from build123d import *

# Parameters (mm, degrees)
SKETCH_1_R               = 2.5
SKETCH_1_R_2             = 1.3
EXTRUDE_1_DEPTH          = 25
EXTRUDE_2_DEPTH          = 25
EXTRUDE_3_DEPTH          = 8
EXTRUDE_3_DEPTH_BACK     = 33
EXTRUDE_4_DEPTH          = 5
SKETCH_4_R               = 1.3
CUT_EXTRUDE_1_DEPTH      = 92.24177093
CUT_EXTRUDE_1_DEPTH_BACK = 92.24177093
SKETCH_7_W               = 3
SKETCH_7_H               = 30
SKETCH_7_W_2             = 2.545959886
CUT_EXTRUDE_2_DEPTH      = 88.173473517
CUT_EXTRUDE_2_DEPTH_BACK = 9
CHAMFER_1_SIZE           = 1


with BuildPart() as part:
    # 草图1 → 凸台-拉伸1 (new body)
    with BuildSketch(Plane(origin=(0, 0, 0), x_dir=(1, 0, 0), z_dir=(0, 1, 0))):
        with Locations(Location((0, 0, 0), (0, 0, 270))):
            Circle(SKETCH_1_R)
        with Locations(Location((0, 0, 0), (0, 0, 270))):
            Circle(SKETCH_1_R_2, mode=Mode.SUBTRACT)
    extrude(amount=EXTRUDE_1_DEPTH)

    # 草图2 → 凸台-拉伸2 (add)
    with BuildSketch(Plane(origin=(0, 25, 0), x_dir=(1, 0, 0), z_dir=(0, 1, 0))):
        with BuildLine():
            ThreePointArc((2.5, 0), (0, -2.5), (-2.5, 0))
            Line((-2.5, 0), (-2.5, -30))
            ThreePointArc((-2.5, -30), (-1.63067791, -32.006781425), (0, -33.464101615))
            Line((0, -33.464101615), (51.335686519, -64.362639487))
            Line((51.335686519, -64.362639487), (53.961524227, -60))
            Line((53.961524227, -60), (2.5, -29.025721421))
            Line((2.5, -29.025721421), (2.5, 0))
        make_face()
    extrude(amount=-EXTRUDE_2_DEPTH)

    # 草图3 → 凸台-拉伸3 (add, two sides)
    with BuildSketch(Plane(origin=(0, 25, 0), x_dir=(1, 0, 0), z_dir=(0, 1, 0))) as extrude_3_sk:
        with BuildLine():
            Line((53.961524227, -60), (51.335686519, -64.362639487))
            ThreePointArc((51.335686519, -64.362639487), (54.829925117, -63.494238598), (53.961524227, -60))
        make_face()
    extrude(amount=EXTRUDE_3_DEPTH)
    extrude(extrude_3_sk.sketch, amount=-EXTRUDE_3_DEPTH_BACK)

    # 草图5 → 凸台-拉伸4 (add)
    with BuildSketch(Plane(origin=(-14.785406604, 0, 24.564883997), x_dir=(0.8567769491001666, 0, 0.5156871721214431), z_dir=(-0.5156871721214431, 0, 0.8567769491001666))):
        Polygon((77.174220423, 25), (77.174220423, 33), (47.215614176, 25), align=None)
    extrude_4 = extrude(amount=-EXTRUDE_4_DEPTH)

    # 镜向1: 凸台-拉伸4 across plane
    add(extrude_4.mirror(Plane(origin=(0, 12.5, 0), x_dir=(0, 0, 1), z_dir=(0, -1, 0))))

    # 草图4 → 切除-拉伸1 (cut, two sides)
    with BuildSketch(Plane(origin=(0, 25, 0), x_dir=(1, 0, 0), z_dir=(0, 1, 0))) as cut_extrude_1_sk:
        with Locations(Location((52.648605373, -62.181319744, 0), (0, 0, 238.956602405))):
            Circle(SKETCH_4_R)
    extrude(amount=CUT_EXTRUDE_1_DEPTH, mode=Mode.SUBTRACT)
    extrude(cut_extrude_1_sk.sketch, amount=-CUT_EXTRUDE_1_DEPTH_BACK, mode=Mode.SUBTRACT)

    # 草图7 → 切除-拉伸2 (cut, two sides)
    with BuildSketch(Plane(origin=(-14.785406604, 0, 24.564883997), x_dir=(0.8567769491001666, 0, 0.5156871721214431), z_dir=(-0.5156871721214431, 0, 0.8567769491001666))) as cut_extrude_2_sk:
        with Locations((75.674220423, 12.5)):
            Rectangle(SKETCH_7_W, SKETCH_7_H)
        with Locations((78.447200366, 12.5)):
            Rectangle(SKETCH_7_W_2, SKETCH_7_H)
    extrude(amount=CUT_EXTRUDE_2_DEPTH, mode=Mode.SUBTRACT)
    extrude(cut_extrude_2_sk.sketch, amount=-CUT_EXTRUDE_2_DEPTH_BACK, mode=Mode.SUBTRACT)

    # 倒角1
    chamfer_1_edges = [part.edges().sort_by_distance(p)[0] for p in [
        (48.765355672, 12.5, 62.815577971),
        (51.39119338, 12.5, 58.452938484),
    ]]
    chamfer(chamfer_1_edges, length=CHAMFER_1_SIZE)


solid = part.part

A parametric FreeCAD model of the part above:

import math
import FreeCAD as App
import Part
import Sketcher

V = App.Vector


def edges_at(feature, points):
    """Names of the edges that pass closest to the given points."""
    edges = feature.Shape.Edges
    near = lambda p: min(range(len(edges)), key=lambda i: edges[i].distToShape(Part.Vertex(*p))[0])
    return sorted({f"Edge{near(p) + 1}" for p in points})


def add_polygon(sketch, points):
    """Adds a closed chain of lines whose ends are joined by coincident constraints."""
    first, n = sketch.GeometryCount, len(points)
    for a, b in zip(points, points[1:] + points[:1]):
        sketch.addGeometry(Part.LineSegment(App.Vector(*a, 0), App.Vector(*b, 0)), False)
    for i in range(n):
        sketch.addConstraint(Sketcher.Constraint("Coincident", first + i, 2, first + (i + 1) % n, 1))

doc = App.newDocument("Part")
body = doc.addObject("PartDesign::Body", "Body")

sketch1 = doc.addObject("Sketcher::SketchObject", "Sketch")
body.addObject(sketch1)
sketch1.AttachmentSupport = (doc.XZ_Plane, [""])
sketch1.MapMode = "FlatFace"
sketch1.addGeometry([
    Part.Circle(V(0, 0, 0), V(0, 0, 1), 2.5),
    Part.Circle(V(0, 0, 0), V(0, 0, 1), 1.3),
], False)
sketch1.addConstraint([
    Sketcher.Constraint("Coincident", 0, 3, -1, 1),
    Sketcher.Constraint("Coincident", 1, 3, -1, 1),
    Sketcher.Constraint("Diameter", 0, 5.0),
    Sketcher.Constraint("Diameter", 1, 2.6),
])
pad1 = doc.addObject("PartDesign::Pad", "Pad")
body.addObject(pad1)
pad1.Profile = sketch1
pad1.Length = 25
pad1.Reversed = True

sketch2 = doc.addObject("Sketcher::SketchObject", "Sketch001")
body.addObject(sketch2)
sketch2.AttachmentSupport = (doc.XZ_Plane, [""])
sketch2.MapMode = "FlatFace"
sketch2.AttachmentOffset = App.Placement(V(0, 0, -25), App.Rotation())
sketch2.addGeometry([
    Part.ArcOfCircle(Part.Circle(V(0, 0, 0), V(0, 0, 1), 2.5), math.radians(0), math.radians(180)),
    Part.LineSegment(V(-2.5, 0, 0), V(-2.5, 30, 0)),
    Part.ArcOfCircle(Part.Circle(V(2.5, 29.025721, 0), V(0, 0, 1), 5.094038), math.radians(119.391193), math.radians(168.973755)),
    Part.LineSegment(V(0, 33.464102, 0), V(51.335687, 64.362639, 0)),
    Part.LineSegment(V(51.335687, 64.362639, 0), V(53.961524, 60, 0)),
    Part.LineSegment(V(53.961524, 60, 0), V(2.5, 29.025721, 0)),
    Part.LineSegment(V(2.5, 29.025721, 0), V(2.5, 0, 0)),
], False)
sketch2.addConstraint([
    Sketcher.Constraint("Coincident", 0, 2, 1, 1),
    Sketcher.Constraint("Coincident", 1, 2, 2, 2),
    Sketcher.Constraint("Coincident", 2, 1, 3, 1),
    Sketcher.Constraint("Coincident", 3, 2, 4, 1),
    Sketcher.Constraint("Coincident", 4, 2, 5, 1),
    Sketcher.Constraint("Coincident", 5, 2, 6, 1),
    Sketcher.Constraint("Coincident", 6, 2, 0, 1),
    Sketcher.Constraint("Vertical", 1),
    Sketcher.Constraint("Vertical", 6),
    Sketcher.Constraint("Coincident", 0, 3, -1, 1),
    Sketcher.Constraint("Coincident", 5, 2, 2, 3),
    Sketcher.Constraint("PointOnObject", 0, 2, -1),
    Sketcher.Constraint("PointOnObject", 2, 1, -2),
    Sketcher.Constraint("PointOnObject", 6, 2, -1),
    Sketcher.Constraint("Radius", 0, 2.5),
    Sketcher.Constraint("DistanceY", 1, 1, 1, 2, 30.0),
    Sketcher.Constraint("DistanceY", -1, 1, 4, 2, 60.0),
    Sketcher.Constraint("Radius", 2, 5.094038),
    Sketcher.Constraint("Distance", 4, 5.09192),
    Sketcher.Constraint("DistanceY", -1, 1, 3, 2, 64.362639),
    Sketcher.Constraint("Distance", 3, 59.917212),
])
pad2 = doc.addObject("PartDesign::Pad", "Pad001")
body.addObject(pad2)
pad2.Profile = sketch2
pad2.Length = 25

sketch3 = doc.addObject("Sketcher::SketchObject", "Sketch002")
body.addObject(sketch3)
sketch3.AttachmentSupport = (doc.XZ_Plane, [""])
sketch3.MapMode = "FlatFace"
sketch3.AttachmentOffset = App.Placement(V(0, 0, -25), App.Rotation())
sketch3.addGeometry([
    Part.LineSegment(V(54, 60, 0), V(51.3, 64.4, 0)),
    Part.ArcOfCircle(Part.Circle(V(52.6, 62.2, 0), V(0, 0, 1), 2.5), math.radians(-59), math.radians(121)),
], False)
sketch3.addConstraint([
    Sketcher.Constraint("Coincident", 0, 1, 1, 1),
    Sketcher.Constraint("Coincident", 1, 2, 0, 2),
    Sketcher.Constraint("DistanceY", -1, 1, 0, 1, 60.0),
    Sketcher.Constraint("Radius", 1, 2.54596),
    Sketcher.Constraint("DistanceY", -1, 1, 1, 3, 62.18132),
    Sketcher.Constraint("DistanceY", -1, 1, 1, 2, 64.362639),
    Sketcher.Constraint("DistanceX", -1, 1, 1, 3, 52.648605),
])
pad3 = doc.addObject("PartDesign::Pad", "Pad002")
body.addObject(pad3)
pad3.Profile = sketch3
pad3.Type = "TwoLengths"
pad3.Length = 8
pad3.Length2 = 33
pad3.Reversed = True

sketch4 = doc.addObject("Sketcher::SketchObject", "Sketch003")
body.addObject(sketch4)
sketch4.Placement = App.Placement(V(-14.785407, 0, 24.564884), App.Rotation(V(0.856776949, 0, 0.515687172), V(0, 1, 0), V(-0.515687172, 0, 0.856776949), "ZXY"))
add_polygon(sketch4, [(77, 25), (77, 33), (47, 25)])
sketch4.addConstraint([
    Sketcher.Constraint("Vertical", 0),
    Sketcher.Constraint("Horizontal", 2),
    Sketcher.Constraint("DistanceY", 0, 1, 0, 2, 8.0),
    Sketcher.Constraint("DistanceY", -1, 1, 0, 2, 33.0),
    Sketcher.Constraint("DistanceX", 2, 1, 2, 2, 29.958606),
    Sketcher.Constraint("DistanceX", -1, 1, 0, 2, 77.17422),
])
pad4 = doc.addObject("PartDesign::Pad", "Pad003")
body.addObject(pad4)
pad4.Profile = sketch4
pad4.Length = 5
pad4.Reversed = True
doc.recompute()

datumplane = doc.addObject("PartDesign::Plane", "DatumPlane")
body.addObject(datumplane)
datumplane.AttachmentSupport = (doc.XZ_Plane, [""])
datumplane.MapMode = "FlatFace"
datumplane.AttachmentOffset = App.Placement(V(0, 0, -12.5), App.Rotation())
mirrored = doc.addObject("PartDesign::Mirrored", "Mirrored")
body.addObject(mirrored)
mirrored.Originals = [pad4]
mirrored.MirrorPlane = (datumplane, [""])
body.Tip = mirrored

sketch5 = doc.addObject("Sketcher::SketchObject", "Sketch004")
body.addObject(sketch5)
sketch5.AttachmentSupport = (doc.XZ_Plane, [""])
sketch5.MapMode = "FlatFace"
sketch5.AttachmentOffset = App.Placement(V(0, 0, -25), App.Rotation())
sketch5.addGeometry(Part.Circle(V(52.6, 62.2, 0), V(0, 0, 1), 1.3), False)
sketch5.addConstraint([
    Sketcher.Constraint("Diameter", 0, 2.6),
    Sketcher.Constraint("DistanceY", -1, 1, 0, 3, 62.18132),
    Sketcher.Constraint("DistanceX", -1, 1, 0, 3, 52.648605),
])
pocket1 = doc.addObject("PartDesign::Pocket", "Pocket")
body.addObject(pocket1)
pocket1.Profile = sketch5
pocket1.Type = "ThroughAll"
pocket1.Midplane = True

sketch6 = doc.addObject("Sketcher::SketchObject", "Sketch005")
body.addObject(sketch6)
sketch6.Placement = App.Placement(V(-14.785407, 0, 24.564884), App.Rotation(V(0.856776949, 0, 0.515687172), V(0, 1, 0), V(-0.515687172, 0, 0.856776949), "ZXY"))
add_polygon(sketch6, [(74, 27), (74, -2), (80, -2), (80, 27)])
sketch6.addConstraint([
    Sketcher.Constraint("Vertical", 0),
    Sketcher.Constraint("Horizontal", 1),
    Sketcher.Constraint("Vertical", 2),
    Sketcher.Constraint("Horizontal", 3),
    Sketcher.Constraint("DistanceY", 0, 2, 0, 1, 30.0),
    Sketcher.Constraint("DistanceY", 0, 2, -1, 1, 2.5),
    Sketcher.Constraint("DistanceX", 1, 1, 1, 2, 5.54596),
    Sketcher.Constraint("DistanceX", -1, 1, 0, 2, 74.17422),
])
pocket2 = doc.addObject("PartDesign::Pocket", "Pocket001")
body.addObject(pocket2)
pocket2.Profile = sketch6
pocket2.Type = "ThroughAll"
pocket2.Midplane = True
doc.recompute()

chamfer = doc.addObject("PartDesign::Chamfer", "Chamfer")
body.addObject(chamfer)
chamfer.Base = (pocket2, edges_at(pocket2, [(48.765, 12.5, 62.816), (51.391, 12.5, 58.453)]))
chamfer.Size = 1

doc.recompute()
